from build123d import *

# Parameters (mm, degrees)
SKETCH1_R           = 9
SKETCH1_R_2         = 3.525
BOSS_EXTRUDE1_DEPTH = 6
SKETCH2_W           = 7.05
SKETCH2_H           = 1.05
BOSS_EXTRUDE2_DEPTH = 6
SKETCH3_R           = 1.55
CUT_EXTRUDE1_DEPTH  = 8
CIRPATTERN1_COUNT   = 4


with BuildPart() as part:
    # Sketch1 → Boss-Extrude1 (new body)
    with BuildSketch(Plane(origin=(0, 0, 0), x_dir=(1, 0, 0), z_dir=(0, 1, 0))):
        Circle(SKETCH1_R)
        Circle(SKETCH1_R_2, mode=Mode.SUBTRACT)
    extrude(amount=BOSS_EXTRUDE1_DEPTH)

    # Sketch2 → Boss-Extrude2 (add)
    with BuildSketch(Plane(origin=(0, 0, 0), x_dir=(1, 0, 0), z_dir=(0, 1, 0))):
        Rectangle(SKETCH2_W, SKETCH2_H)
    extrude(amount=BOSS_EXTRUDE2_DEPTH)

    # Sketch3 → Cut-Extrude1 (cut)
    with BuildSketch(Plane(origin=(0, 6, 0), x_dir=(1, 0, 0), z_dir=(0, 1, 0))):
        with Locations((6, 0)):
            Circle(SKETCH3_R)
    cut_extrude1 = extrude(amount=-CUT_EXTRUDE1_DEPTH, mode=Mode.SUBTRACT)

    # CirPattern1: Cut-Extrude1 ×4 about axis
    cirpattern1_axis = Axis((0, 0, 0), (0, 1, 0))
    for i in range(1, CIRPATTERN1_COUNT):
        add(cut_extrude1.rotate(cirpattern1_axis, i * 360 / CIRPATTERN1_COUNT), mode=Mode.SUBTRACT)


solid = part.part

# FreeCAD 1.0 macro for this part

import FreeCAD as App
import Part
import Sketcher

V = App.Vector
Q = App.Units.Quantity


def add_polygon(sketch, points):
    """Adds a closed chain of lines whose ends are joined by coincident constraints."""
    first, n = sketch.GeometryCount, len(points)
    for a, b in zip(points, points[1:] + points[:1]):
        sketch.addGeometry(Part.LineSegment(App.Vector(*a, 0), App.Vector(*b, 0)), False)
    for i in range(n):
        sketch.addConstraint(Sketcher.Constraint("Coincident", first + i, 2, first + (i + 1) % n, 1))

doc = App.newDocument("Part")
body = doc.addObject("PartDesign::Body", "Body")

# Sketch on XZ plane
sketch1 = body.newObject("Sketcher::SketchObject", "Sketch")
sketch1.AttachmentSupport = (doc.getObject("XZ_Plane"), [""])
sketch1.MapMode = "FlatFace"
sketch1.addGeometry([
    Part.Circle(V(0, 0, 0), V(0, 0, 1), 9),
    Part.Circle(V(0, 0, 0), V(0, 0, 1), 3.525),
], False)
sketch1.addConstraint([
    Sketcher.Constraint("Coincident", 0, 3, -1, 1),
    Sketcher.Constraint("Coincident", 1, 3, -1, 1),
    Sketcher.Constraint("Diameter", 0, Q("18 mm")),
    Sketcher.Constraint("Diameter", 1, Q("7.05 mm")),
])
pad1 = body.newObject("PartDesign::Pad", "Pad")
pad1.Profile = sketch1
pad1.Length = 6
pad1.Reversed = True

# Sketch on XZ plane
sketch2 = body.newObject("Sketcher::SketchObject", "Sketch001")
sketch2.AttachmentSupport = (doc.getObject("XZ_Plane"), [""])
sketch2.MapMode = "FlatFace"
add_polygon(sketch2, [(-3.525, -0.525), (-3.525, 0.525), (3.525, 0.525), (3.525, -0.525)])  # lines 0-3
sketch2.addConstraint([
    Sketcher.Constraint("Vertical", 0),
    Sketcher.Constraint("Horizontal", 1),
    Sketcher.Constraint("Vertical", 2),
    Sketcher.Constraint("Horizontal", 3),
    Sketcher.Constraint("Symmetric", 0, 2, 2, 2, -1, 1),
    Sketcher.Constraint("DistanceX", 1, 1, 1, 2, Q("7.05 mm")),
    Sketcher.Constraint("DistanceY", 0, 1, 0, 2, Q("1.05 mm")),
])
pad2 = body.newObject("PartDesign::Pad", "Pad001")
pad2.Profile = sketch2
pad2.Length = 6
pad2.Reversed = True

# Sketch on XZ plane
sketch3 = body.newObject("Sketcher::SketchObject", "Sketch002")
sketch3.AttachmentSupport = (doc.getObject("XZ_Plane"), [""])
sketch3.MapMode = "FlatFace"
sketch3.AttachmentOffset = App.Placement(V(0, 0, -6), App.Rotation())
sketch3.addGeometry(Part.Circle(V(6, 0, 0), V(0, 0, 1), 1.55), False)
sketch3.addConstraint([
    Sketcher.Constraint("PointOnObject", 0, 3, -1),
    Sketcher.Constraint("Diameter", 0, Q("3.1 mm")),
    Sketcher.Constraint("DistanceX", -1, 1, 0, 3, Q("6 mm")),
])
pocket1 = body.newObject("PartDesign::Pocket", "Pocket")
pocket1.Profile = sketch3
pocket1.Length = 8
pocket1.Reversed = True
doc.recompute()

polarpattern = body.newObject("PartDesign::PolarPattern", "PolarPattern")
polarpattern.Originals = [pocket1]
polarpattern.Axis = (doc.getObject("Y_Axis"), [""])
polarpattern.Angle = 360
polarpattern.Occurrences = 4
body.Tip = polarpattern

doc.recompute()
